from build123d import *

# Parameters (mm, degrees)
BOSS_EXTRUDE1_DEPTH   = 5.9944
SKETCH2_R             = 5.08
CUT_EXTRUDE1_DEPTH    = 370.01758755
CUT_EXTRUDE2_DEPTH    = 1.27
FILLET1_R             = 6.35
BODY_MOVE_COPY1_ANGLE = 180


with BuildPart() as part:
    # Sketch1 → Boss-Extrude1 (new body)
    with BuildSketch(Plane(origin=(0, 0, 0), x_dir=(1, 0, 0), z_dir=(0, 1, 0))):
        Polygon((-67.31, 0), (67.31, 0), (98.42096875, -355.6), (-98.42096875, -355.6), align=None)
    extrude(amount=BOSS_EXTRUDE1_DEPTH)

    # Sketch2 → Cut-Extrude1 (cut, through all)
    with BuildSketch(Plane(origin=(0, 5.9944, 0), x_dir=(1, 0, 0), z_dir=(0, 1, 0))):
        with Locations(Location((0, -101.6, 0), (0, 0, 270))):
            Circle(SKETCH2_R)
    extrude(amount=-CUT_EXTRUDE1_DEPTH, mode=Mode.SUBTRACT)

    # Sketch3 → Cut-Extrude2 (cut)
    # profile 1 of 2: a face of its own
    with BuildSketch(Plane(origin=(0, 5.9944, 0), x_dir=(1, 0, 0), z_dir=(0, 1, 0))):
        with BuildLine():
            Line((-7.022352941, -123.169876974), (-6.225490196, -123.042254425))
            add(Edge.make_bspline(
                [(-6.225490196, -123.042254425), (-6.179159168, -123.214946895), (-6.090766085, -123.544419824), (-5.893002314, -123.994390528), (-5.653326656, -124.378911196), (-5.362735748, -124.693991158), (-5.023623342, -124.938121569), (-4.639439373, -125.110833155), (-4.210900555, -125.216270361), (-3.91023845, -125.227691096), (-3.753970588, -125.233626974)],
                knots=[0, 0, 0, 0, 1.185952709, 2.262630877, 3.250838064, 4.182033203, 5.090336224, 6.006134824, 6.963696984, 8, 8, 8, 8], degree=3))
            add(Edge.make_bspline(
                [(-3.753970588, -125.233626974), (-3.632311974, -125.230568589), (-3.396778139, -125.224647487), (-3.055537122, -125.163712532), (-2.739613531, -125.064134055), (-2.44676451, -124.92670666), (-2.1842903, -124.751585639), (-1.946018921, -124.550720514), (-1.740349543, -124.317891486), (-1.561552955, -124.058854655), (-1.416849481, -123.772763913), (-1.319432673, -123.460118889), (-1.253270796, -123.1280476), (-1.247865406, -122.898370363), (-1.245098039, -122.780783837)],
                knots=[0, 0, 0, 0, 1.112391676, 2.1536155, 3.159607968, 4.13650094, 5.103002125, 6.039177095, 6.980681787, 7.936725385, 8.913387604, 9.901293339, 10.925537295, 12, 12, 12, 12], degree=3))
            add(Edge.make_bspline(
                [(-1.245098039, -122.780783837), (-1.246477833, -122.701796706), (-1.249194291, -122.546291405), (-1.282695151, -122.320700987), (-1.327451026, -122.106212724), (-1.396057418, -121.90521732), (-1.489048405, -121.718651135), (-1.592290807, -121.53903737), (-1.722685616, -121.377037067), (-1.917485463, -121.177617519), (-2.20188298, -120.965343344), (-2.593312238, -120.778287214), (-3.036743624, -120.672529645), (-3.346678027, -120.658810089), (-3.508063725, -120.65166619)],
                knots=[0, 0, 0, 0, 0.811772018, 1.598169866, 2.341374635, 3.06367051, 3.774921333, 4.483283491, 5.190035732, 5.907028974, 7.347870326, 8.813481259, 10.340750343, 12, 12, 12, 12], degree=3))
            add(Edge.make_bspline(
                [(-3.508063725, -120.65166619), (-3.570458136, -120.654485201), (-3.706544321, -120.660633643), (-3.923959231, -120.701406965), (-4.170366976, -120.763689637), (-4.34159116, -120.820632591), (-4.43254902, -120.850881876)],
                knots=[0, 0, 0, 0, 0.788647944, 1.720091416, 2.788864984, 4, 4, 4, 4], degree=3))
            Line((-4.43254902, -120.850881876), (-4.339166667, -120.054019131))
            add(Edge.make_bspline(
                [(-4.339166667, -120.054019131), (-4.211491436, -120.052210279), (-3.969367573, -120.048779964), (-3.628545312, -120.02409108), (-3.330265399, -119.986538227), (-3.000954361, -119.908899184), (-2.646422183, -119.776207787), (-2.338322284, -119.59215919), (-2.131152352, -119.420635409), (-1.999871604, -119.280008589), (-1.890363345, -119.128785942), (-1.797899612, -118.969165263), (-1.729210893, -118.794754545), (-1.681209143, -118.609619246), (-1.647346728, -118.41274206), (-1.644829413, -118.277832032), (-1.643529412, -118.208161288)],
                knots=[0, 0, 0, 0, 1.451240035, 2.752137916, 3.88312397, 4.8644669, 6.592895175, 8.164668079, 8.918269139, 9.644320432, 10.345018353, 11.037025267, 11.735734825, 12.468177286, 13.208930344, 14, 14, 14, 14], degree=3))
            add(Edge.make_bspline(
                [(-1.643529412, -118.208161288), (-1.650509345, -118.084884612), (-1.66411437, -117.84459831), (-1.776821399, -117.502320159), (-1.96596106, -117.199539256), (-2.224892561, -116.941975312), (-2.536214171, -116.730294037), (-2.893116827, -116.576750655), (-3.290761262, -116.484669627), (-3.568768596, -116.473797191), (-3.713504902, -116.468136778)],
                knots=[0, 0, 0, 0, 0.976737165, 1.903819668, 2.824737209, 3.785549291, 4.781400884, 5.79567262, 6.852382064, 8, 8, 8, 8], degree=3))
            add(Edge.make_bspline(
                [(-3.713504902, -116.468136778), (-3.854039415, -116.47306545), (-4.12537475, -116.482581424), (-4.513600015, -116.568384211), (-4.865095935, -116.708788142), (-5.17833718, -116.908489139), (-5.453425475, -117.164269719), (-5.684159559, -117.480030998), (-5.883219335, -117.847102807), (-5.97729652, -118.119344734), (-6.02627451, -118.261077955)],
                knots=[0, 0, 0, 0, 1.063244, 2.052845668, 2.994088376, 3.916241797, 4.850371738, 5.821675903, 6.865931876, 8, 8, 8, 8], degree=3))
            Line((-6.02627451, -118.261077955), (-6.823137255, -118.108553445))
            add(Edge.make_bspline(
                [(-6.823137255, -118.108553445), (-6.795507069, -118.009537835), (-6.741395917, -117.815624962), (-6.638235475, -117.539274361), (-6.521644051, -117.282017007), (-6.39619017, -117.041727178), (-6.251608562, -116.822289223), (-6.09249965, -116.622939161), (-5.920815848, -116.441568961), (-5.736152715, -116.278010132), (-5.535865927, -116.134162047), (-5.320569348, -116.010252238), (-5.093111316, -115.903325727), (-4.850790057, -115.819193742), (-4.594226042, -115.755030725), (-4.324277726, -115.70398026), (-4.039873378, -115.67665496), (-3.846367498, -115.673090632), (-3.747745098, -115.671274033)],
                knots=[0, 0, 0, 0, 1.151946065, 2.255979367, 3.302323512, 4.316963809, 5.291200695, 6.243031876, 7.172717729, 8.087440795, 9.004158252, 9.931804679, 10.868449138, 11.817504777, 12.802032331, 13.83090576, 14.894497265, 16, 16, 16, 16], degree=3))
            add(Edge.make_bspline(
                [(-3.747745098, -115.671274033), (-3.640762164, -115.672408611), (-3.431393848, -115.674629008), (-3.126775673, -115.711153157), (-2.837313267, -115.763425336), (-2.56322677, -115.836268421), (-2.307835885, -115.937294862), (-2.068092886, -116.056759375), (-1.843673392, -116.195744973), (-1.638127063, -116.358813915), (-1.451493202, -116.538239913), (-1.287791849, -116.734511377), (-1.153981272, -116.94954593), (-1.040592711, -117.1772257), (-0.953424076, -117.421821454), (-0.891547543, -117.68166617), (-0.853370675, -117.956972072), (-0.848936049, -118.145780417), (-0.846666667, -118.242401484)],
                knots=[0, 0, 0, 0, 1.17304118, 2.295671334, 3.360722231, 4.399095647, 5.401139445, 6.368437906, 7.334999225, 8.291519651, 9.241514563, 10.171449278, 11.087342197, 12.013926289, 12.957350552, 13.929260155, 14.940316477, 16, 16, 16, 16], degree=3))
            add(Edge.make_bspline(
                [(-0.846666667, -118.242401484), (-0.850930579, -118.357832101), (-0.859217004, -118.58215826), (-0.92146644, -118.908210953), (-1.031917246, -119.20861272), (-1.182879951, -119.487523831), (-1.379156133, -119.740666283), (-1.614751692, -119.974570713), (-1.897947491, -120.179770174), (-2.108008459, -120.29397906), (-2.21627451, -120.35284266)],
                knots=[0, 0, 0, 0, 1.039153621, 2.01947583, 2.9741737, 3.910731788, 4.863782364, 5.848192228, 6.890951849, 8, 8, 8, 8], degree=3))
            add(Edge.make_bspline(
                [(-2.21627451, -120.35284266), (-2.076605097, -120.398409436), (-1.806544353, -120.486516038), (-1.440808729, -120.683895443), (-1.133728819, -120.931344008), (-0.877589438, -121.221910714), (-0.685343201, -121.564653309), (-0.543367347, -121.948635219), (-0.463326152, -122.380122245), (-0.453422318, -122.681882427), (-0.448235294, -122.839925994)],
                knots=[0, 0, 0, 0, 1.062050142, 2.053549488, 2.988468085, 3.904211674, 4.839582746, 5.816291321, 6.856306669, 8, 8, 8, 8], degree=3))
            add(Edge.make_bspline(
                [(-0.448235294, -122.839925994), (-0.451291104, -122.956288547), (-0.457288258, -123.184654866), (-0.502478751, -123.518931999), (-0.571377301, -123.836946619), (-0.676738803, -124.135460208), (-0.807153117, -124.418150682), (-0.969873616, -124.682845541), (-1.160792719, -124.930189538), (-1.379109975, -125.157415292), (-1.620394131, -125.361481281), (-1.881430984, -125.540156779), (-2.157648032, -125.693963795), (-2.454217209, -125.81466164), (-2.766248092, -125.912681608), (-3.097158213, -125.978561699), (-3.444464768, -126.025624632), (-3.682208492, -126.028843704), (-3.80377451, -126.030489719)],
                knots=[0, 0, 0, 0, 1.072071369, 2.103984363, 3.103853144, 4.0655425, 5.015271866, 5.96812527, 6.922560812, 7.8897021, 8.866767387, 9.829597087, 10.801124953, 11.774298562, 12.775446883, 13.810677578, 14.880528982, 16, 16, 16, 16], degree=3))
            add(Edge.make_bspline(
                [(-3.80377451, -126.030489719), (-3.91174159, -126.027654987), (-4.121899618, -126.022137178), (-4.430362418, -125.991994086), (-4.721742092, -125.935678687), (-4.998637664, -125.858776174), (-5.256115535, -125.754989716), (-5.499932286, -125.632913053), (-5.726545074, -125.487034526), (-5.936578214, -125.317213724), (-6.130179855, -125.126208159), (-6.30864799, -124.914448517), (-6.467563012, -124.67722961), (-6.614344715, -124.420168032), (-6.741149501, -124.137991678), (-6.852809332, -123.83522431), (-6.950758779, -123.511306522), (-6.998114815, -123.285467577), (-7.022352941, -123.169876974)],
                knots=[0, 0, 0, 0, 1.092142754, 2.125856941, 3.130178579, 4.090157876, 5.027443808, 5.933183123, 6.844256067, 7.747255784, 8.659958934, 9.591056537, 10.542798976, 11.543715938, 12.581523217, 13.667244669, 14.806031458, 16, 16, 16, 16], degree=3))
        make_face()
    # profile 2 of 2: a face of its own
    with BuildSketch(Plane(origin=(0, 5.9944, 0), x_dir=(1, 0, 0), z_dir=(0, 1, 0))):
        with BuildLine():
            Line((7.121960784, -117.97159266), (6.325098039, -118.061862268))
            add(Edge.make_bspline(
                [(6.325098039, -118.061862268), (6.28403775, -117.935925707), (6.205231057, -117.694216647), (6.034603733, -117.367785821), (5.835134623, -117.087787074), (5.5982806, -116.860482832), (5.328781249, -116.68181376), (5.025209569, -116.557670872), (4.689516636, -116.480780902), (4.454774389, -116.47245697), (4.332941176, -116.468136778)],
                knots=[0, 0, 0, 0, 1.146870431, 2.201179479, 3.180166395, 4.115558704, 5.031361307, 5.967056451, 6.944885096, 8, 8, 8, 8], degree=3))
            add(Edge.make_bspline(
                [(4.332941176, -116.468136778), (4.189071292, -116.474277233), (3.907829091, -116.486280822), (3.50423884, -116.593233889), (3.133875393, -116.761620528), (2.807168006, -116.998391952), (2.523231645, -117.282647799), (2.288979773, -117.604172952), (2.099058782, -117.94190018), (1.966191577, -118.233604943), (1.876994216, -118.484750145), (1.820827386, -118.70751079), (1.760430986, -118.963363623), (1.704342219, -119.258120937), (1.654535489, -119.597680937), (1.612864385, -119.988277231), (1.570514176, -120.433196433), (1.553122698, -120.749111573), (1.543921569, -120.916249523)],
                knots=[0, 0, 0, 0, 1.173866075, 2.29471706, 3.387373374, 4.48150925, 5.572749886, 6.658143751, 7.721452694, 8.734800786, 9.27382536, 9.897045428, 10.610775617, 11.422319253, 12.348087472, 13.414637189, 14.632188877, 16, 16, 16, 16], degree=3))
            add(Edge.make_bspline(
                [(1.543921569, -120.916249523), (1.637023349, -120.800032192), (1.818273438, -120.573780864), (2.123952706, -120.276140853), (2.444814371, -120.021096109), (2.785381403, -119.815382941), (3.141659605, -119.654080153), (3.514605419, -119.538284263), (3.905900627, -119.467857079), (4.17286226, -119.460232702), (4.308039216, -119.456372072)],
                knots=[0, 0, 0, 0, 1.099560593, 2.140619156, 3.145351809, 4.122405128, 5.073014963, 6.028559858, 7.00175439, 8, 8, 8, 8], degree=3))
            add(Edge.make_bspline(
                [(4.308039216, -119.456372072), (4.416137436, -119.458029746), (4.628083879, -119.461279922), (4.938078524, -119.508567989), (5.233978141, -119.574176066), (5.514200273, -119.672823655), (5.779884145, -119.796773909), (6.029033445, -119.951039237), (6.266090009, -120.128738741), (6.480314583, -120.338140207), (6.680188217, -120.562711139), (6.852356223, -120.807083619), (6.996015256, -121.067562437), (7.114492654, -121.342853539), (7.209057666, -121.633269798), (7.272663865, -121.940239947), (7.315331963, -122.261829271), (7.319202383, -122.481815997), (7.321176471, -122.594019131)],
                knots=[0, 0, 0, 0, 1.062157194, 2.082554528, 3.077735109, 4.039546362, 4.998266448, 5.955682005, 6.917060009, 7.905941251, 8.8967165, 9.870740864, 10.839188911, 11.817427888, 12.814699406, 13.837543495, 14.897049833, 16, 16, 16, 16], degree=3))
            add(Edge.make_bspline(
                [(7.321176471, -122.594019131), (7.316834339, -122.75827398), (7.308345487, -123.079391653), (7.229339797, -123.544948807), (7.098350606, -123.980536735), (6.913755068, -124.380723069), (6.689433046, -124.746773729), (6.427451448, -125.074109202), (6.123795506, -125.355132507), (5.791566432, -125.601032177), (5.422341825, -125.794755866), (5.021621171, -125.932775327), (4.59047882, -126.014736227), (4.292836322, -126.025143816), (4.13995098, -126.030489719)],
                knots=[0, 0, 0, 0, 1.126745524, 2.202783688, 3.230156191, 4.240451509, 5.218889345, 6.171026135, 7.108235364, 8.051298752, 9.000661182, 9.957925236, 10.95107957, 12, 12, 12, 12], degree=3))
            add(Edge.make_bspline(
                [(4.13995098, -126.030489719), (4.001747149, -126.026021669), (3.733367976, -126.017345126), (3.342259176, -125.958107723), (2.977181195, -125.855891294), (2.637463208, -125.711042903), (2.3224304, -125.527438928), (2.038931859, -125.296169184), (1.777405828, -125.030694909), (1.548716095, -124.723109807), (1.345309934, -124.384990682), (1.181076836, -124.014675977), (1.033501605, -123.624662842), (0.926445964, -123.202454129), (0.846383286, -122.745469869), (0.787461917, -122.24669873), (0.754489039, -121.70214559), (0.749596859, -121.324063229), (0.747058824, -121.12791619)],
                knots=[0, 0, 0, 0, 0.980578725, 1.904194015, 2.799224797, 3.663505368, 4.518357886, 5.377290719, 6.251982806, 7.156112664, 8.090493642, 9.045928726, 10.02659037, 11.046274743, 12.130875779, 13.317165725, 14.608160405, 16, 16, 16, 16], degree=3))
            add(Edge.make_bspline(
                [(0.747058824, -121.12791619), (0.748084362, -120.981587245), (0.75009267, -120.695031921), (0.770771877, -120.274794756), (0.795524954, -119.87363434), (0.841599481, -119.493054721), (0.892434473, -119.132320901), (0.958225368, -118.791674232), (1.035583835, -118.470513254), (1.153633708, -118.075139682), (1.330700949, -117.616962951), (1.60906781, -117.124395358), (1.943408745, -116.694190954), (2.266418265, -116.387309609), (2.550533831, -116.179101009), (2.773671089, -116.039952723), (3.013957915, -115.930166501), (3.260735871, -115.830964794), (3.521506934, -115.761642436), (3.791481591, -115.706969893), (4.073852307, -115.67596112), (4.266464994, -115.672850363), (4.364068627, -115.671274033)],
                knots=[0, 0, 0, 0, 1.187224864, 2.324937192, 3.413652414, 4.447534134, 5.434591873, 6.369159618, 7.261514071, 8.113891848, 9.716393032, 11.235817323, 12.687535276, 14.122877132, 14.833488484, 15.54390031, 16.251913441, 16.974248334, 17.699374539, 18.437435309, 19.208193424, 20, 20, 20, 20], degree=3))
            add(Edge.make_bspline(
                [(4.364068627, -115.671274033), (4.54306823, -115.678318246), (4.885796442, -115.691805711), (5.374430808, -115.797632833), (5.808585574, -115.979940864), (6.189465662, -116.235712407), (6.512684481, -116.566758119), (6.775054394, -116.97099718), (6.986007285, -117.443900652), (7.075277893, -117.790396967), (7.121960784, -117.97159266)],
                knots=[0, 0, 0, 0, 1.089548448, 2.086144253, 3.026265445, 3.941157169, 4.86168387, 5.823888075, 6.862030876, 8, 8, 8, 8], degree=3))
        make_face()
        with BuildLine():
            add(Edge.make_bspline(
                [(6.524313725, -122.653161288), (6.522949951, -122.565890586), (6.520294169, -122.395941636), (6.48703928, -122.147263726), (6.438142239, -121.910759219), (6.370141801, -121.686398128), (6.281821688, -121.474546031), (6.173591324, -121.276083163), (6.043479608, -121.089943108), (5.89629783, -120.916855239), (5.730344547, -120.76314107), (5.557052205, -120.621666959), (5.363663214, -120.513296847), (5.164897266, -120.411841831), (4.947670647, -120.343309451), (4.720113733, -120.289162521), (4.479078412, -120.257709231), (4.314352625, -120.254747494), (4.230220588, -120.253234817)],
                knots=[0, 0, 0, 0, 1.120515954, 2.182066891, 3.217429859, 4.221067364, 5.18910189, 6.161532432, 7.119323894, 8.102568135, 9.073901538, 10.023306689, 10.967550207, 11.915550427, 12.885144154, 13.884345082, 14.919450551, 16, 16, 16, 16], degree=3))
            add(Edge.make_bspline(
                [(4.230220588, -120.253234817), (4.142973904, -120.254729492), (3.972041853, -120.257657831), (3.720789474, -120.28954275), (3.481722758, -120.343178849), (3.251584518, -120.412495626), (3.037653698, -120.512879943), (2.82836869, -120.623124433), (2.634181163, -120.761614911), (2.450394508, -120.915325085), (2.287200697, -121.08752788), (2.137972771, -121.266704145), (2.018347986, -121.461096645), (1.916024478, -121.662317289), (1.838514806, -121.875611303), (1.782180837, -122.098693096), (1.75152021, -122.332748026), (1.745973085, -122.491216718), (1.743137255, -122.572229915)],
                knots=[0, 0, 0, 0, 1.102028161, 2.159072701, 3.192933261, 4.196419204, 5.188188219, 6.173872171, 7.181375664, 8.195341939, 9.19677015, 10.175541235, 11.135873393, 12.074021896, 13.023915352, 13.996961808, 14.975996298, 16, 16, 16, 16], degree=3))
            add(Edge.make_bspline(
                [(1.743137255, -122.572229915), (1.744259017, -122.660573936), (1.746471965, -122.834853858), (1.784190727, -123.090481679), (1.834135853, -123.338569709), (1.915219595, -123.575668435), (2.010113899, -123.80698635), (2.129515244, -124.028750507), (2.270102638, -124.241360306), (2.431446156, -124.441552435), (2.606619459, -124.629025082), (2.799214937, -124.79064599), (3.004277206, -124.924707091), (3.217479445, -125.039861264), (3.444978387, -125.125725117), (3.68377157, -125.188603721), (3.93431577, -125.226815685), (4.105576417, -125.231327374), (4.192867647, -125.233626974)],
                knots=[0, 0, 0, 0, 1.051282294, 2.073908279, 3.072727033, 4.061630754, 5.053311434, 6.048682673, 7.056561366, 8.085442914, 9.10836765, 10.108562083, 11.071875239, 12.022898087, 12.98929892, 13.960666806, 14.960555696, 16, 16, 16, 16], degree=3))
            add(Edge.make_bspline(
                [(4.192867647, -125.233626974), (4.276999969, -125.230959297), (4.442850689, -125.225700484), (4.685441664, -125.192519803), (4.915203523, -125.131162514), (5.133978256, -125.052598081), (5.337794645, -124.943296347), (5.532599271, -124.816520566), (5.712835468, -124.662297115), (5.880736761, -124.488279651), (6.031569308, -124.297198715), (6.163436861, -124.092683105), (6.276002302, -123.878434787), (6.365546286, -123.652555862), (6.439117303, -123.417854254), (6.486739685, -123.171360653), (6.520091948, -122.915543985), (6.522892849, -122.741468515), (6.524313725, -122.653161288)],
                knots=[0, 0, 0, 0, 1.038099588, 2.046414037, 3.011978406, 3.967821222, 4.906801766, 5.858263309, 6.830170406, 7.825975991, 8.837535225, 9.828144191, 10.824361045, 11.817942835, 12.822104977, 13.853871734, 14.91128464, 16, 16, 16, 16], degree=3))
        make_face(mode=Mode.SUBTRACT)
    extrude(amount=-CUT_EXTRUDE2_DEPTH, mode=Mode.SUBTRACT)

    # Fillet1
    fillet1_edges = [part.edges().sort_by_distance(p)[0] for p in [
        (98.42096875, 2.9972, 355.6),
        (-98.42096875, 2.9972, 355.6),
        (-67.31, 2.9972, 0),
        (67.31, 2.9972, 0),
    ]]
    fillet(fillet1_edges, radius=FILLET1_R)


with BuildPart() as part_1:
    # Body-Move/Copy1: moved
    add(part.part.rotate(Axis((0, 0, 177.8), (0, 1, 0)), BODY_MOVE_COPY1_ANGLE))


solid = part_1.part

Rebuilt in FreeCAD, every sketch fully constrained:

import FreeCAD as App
import Part
import Sketcher

V = App.Vector
Q = App.Units.Quantity


def edges_at(feature, points):
    """Names of the edges that pass closest to the given points."""
    edges = feature.Shape.Edges
    near = lambda p: min(range(len(edges)), key=lambda i: edges[i].distToShape(Part.Vertex(*p))[0])
    return sorted({f"Edge{near(p) + 1}" for p in points})

doc = App.newDocument("Part")
body = doc.addObject("PartDesign::Body", "Body")

# Sketch on XZ plane
sketch1 = body.newObject("Sketcher::SketchObject", "Sketch")
sketch1.AttachmentSupport = (doc.getObject("XZ_Plane"), [""])
sketch1.MapMode = "FlatFace"
sketch1.addGeometry([
    Part.LineSegment(V(67.31, 0, 0), V(-67.31, 0, 0)),
    Part.LineSegment(V(-67.31, 0, 0), V(-98.420969, 355.6, 0)),
    Part.LineSegment(V(-98.420969, 355.6, 0), V(98.420969, 355.6, 0)),
    Part.LineSegment(V(98.420969, 355.6, 0), V(67.31, 0, 0)),
], False)
sketch1.addConstraint([
    Sketcher.Constraint("Coincident", 0, 2, 1, 1),
    Sketcher.Constraint("Coincident", 1, 2, 2, 1),
    Sketcher.Constraint("Coincident", 2, 2, 3, 1),
    Sketcher.Constraint("Coincident", 3, 2, 0, 1),
    Sketcher.Constraint("Horizontal", 0),
    Sketcher.Constraint("Horizontal", 2),
    Sketcher.Constraint("Symmetric", 0, 2, 3, 2, -1, 1),
    Sketcher.Constraint("Equal", 1, 3),
    Sketcher.Constraint("DistanceX", 0, 2, 0, 1, Q("5.3 in")),
    Sketcher.Constraint("DistanceY", -1, 1, 1, 2, Q("14 in")),
    Sketcher.Constraint("Angle", 1, Q("95 deg")),
])
pad1 = body.newObject("PartDesign::Pad", "Pad")
pad1.Profile = sketch1
pad1.Length = Q("0.236 in")
pad1.Reversed = True

# Sketch on XZ plane
sketch2 = body.newObject("Sketcher::SketchObject", "Sketch001")
sketch2.AttachmentSupport = (doc.getObject("XZ_Plane"), [""])
sketch2.MapMode = "FlatFace"
sketch2.AttachmentOffset = App.Placement(V(0, 0, -0.236 * 25.4), App.Rotation())
sketch2.addGeometry(Part.Circle(V(0, 101.6, 0), V(0, 0, 1), 5.08), False)
sketch2.addConstraint([
    Sketcher.Constraint("PointOnObject", 0, 3, -2),
    Sketcher.Constraint("Diameter", 0, Q("0.4 in")),
    Sketcher.Constraint("DistanceY", -1, 1, 0, 3, Q("4 in")),
])
pocket1 = body.newObject("PartDesign::Pocket", "Pocket")
pocket1.Profile = sketch2
pocket1.Type = "ThroughAll"
pocket1.Reversed = True

# Sketch on XZ plane
sketch3 = body.newObject("Sketcher::SketchObject", "Sketch002")
sketch3.AttachmentSupport = (doc.getObject("XZ_Plane"), [""])
sketch3.MapMode = "FlatFace"
sketch3.AttachmentOffset = App.Placement(V(0, 0, -0.236 * 25.4), App.Rotation())
sketch3.addGeometry([
    Part.LineSegment(V(-6.22549, 123.042254, 0), V(-7.022353, 123.169877, 0)),  # 0
    Part.BSplineCurve([V(-3.803775, 126.03049, 0), V(-3.911742, 126.027655, 0), V(-4.1219, 126.022137, 0), V(-4.430362, 125.991994, 0), V(-4.721742, 125.935679, 0), V(-4.998638, 125.858776, 0), V(-5.256116, 125.75499, 0), V(-5.499932, 125.632913, 0), V(-5.726545, 125.487035, 0), V(-5.936578, 125.317214, 0), V(-6.13018, 125.126208, 0), V(-6.308648, 124.914449, 0), V(-6.467563, 124.67723, 0), V(-6.614345, 124.420168, 0), V(-6.74115, 124.137992, 0), V(-6.852809, 123.835224, 0), V(-6.950759, 123.511307, 0), V(-6.998115, 123.285468, 0), V(-7.022353, 123.169877, 0)], [4, 1, 1, 1, 1, 1, 1, 1, 1, 1, 1, 1, 1, 1, 1, 1, 4], [0, 1.092142754, 2.125856941, 3.130178579, 4.090157876, 5.027443808, 5.933183123, 6.844256067, 7.747255784, 8.659958934, 9.591056537, 10.542798976, 11.543715938, 12.581523217, 13.667244669, 14.806031458, 16], False, 3, [1, 1, 1, 1, 1, 1, 1, 1, 1, 1, 1, 1, 1, 1, 1, 1, 1, 1, 1], False),  # 1
    Part.BSplineCurve([V(-0.448235, 122.839926, 0), V(-0.451291, 122.956289, 0), V(-0.457288, 123.184655, 0), V(-0.502479, 123.518932, 0), V(-0.571377, 123.836947, 0), V(-0.676739, 124.13546, 0), V(-0.807153, 124.418151, 0), V(-0.969874, 124.682846, 0), V(-1.160793, 124.93019, 0), V(-1.37911, 125.157415, 0), V(-1.620394, 125.361481, 0), V(-1.881431, 125.540157, 0), V(-2.157648, 125.693964, 0), V(-2.454217, 125.814662, 0), V(-2.766248, 125.912682, 0), V(-3.097158, 125.978562, 0), V(-3.444465, 126.025625, 0), V(-3.682208, 126.028844, 0), V(-3.803775, 126.03049, 0)], [4, 1, 1, 1, 1, 1, 1, 1, 1, 1, 1, 1, 1, 1, 1, 1, 4], [0, 1.072071369, 2.103984363, 3.103853144, 4.0655425, 5.015271866, 5.96812527, 6.922560812, 7.8897021, 8.866767387, 9.829597087, 10.801124953, 11.774298562, 12.775446883, 13.810677578, 14.880528982, 16], False, 3, [1, 1, 1, 1, 1, 1, 1, 1, 1, 1, 1, 1, 1, 1, 1, 1, 1, 1, 1], False),  # 2
    Part.BSplineCurve([V(-2.216275, 120.352843, 0), V(-2.076605, 120.398409, 0), V(-1.806544, 120.486516, 0), V(-1.440809, 120.683895, 0), V(-1.133729, 120.931344, 0), V(-0.877589, 121.221911, 0), V(-0.685343, 121.564653, 0), V(-0.543367, 121.948635, 0), V(-0.463326, 122.380122, 0), V(-0.453422, 122.681882, 0), V(-0.448235, 122.839926, 0)], [4, 1, 1, 1, 1, 1, 1, 1, 4], [0, 1.062050142, 2.053549488, 2.988468085, 3.904211674, 4.839582746, 5.816291321, 6.856306669, 8], False, 3, [1, 1, 1, 1, 1, 1, 1, 1, 1, 1, 1], False),  # 3
    Part.BSplineCurve([V(-0.846667, 118.242401, 0), V(-0.850931, 118.357832, 0), V(-0.859217, 118.582158, 0), V(-0.921466, 118.908211, 0), V(-1.031917, 119.208613, 0), V(-1.18288, 119.487524, 0), V(-1.379156, 119.740666, 0), V(-1.614752, 119.974571, 0), V(-1.897947, 120.17977, 0), V(-2.108008, 120.293979, 0), V(-2.216275, 120.352843, 0)], [4, 1, 1, 1, 1, 1, 1, 1, 4], [0, 1.039153621, 2.01947583, 2.9741737, 3.910731788, 4.863782364, 5.848192228, 6.890951849, 8], False, 3, [1, 1, 1, 1, 1, 1, 1, 1, 1, 1, 1], False),  # 4
    Part.BSplineCurve([V(-3.747745, 115.671274, 0), V(-3.640762, 115.672409, 0), V(-3.431394, 115.674629, 0), V(-3.126776, 115.711153, 0), V(-2.837313, 115.763425, 0), V(-2.563227, 115.836268, 0), V(-2.307836, 115.937295, 0), V(-2.068093, 116.056759, 0), V(-1.843673, 116.195745, 0), V(-1.638127, 116.358814, 0), V(-1.451493, 116.53824, 0), V(-1.287792, 116.734511, 0), V(-1.153981, 116.949546, 0), V(-1.040593, 117.177226, 0), V(-0.953424, 117.421821, 0), V(-0.891548, 117.681666, 0), V(-0.853371, 117.956972, 0), V(-0.848936, 118.14578, 0), V(-0.846667, 118.242401, 0)], [4, 1, 1, 1, 1, 1, 1, 1, 1, 1, 1, 1, 1, 1, 1, 1, 4], [0, 1.17304118, 2.295671334, 3.360722231, 4.399095647, 5.401139445, 6.368437906, 7.334999225, 8.291519651, 9.241514563, 10.171449278, 11.087342197, 12.013926289, 12.957350552, 13.929260155, 14.940316477, 16], False, 3, [1, 1, 1, 1, 1, 1, 1, 1, 1, 1, 1, 1, 1, 1, 1, 1, 1, 1, 1], False),  # 5
    Part.BSplineCurve([V(-6.823137, 118.108553, 0), V(-6.795507, 118.009538, 0), V(-6.741396, 117.815625, 0), V(-6.638235, 117.539274, 0), V(-6.521644, 117.282017, 0), V(-6.39619, 117.041727, 0), V(-6.251609, 116.822289, 0), V(-6.0925, 116.622939, 0), V(-5.920816, 116.441569, 0), V(-5.736153, 116.27801, 0), V(-5.535866, 116.134162, 0), V(-5.320569, 116.010252, 0), V(-5.093111, 115.903326, 0), V(-4.85079, 115.819194, 0), V(-4.594226, 115.755031, 0), V(-4.324278, 115.70398, 0), V(-4.039873, 115.676655, 0), V(-3.846367, 115.673091, 0), V(-3.747745, 115.671274, 0)], [4, 1, 1, 1, 1, 1, 1, 1, 1, 1, 1, 1, 1, 1, 1, 1, 4], [0, 1.151946065, 2.255979367, 3.302323512, 4.316963809, 5.291200695, 6.243031876, 7.172717729, 8.087440795, 9.004158252, 9.931804679, 10.868449138, 11.817504777, 12.802032331, 13.83090576, 14.894497265, 16], False, 3, [1, 1, 1, 1, 1, 1, 1, 1, 1, 1, 1, 1, 1, 1, 1, 1, 1, 1, 1], False),  # 6
    Part.LineSegment(V(-6.823137, 118.108553, 0), V(-6.026275, 118.261078, 0)),  # 7
    Part.BSplineCurve([V(-3.713505, 116.468137, 0), V(-3.854039, 116.473065, 0), V(-4.125375, 116.482581, 0), V(-4.5136, 116.568384, 0), V(-4.865096, 116.708788, 0), V(-5.178337, 116.908489, 0), V(-5.453425, 117.16427, 0), V(-5.68416, 117.480031, 0), V(-5.883219, 117.847103, 0), V(-5.977297, 118.119345, 0), V(-6.026275, 118.261078, 0)], [4, 1, 1, 1, 1, 1, 1, 1, 4], [0, 1.063244, 2.052845668, 2.994088376, 3.916241797, 4.850371738, 5.821675903, 6.865931876, 8], False, 3, [1, 1, 1, 1, 1, 1, 1, 1, 1, 1, 1], False),  # 8
    Part.BSplineCurve([V(-1.643529, 118.208161, 0), V(-1.650509, 118.084885, 0), V(-1.664114, 117.844598, 0), V(-1.776821, 117.50232, 0), V(-1.965961, 117.199539, 0), V(-2.224893, 116.941975, 0), V(-2.536214, 116.730294, 0), V(-2.893117, 116.576751, 0), V(-3.290761, 116.48467, 0), V(-3.568769, 116.473797, 0), V(-3.713505, 116.468137, 0)], [4, 1, 1, 1, 1, 1, 1, 1, 4], [0, 0.976737165, 1.903819668, 2.824737209, 3.785549291, 4.781400884, 5.79567262, 6.852382064, 8], False, 3, [1, 1, 1, 1, 1, 1, 1, 1, 1, 1, 1], False),  # 9
    Part.BSplineCurve([V(-4.339167, 120.054019, 0), V(-4.211491, 120.05221, 0), V(-3.969368, 120.04878, 0), V(-3.628545, 120.024091, 0), V(-3.330265, 119.986538, 0), V(-3.000954, 119.908899, 0), V(-2.646422, 119.776208, 0), V(-2.338322, 119.592159, 0), V(-2.131152, 119.420635, 0), V(-1.999872, 119.280009, 0), V(-1.890363, 119.128786, 0), V(-1.7979, 118.969165, 0), V(-1.729211, 118.794755, 0), V(-1.681209, 118.609619, 0), V(-1.647347, 118.412742, 0), V(-1.644829, 118.277832, 0), V(-1.643529, 118.208161, 0)], [4, 1, 1, 1, 1, 1, 1, 1, 1, 1, 1, 1, 1, 1, 4], [0, 1.451240035, 2.752137916, 3.88312397, 4.8644669, 6.592895175, 8.164668079, 8.918269139, 9.644320432, 10.345018353, 11.037025267, 11.735734825, 12.468177286, 13.208930344, 14], False, 3, [1, 1, 1, 1, 1, 1, 1, 1, 1, 1, 1, 1, 1, 1, 1, 1, 1], False),  # 10
    Part.LineSegment(V(-4.339167, 120.054019, 0), V(-4.432549, 120.850882, 0)),  # 11
    Part.BSplineCurve([V(-3.508064, 120.651666, 0), V(-3.570458, 120.654485, 0), V(-3.706544, 120.660634, 0), V(-3.923959, 120.701407, 0), V(-4.170367, 120.76369, 0), V(-4.341591, 120.820633, 0), V(-4.432549, 120.850882, 0)], [4, 1, 1, 1, 4], [0, 0.788647944, 1.720091416, 2.788864984, 4], False, 3, [1, 1, 1, 1, 1, 1, 1], False),  # 12
    Part.BSplineCurve([V(-1.245098, 122.780784, 0), V(-1.246478, 122.701797, 0), V(-1.249194, 122.546291, 0), V(-1.282695, 122.320701, 0), V(-1.327451, 122.106213, 0), V(-1.396057, 121.905217, 0), V(-1.489048, 121.718651, 0), V(-1.592291, 121.539037, 0), V(-1.722686, 121.377037, 0), V(-1.917485, 121.177618, 0), V(-2.201883, 120.965343, 0), V(-2.593312, 120.778287, 0), V(-3.036744, 120.67253, 0), V(-3.346678, 120.65881, 0), V(-3.508064, 120.651666, 0)], [4, 1, 1, 1, 1, 1, 1, 1, 1, 1, 1, 1, 4], [0, 0.811772018, 1.598169866, 2.341374635, 3.06367051, 3.774921333, 4.483283491, 5.190035732, 5.907028974, 7.347870326, 8.813481259, 10.340750343, 12], False, 3, [1, 1, 1, 1, 1, 1, 1, 1, 1, 1, 1, 1, 1, 1, 1], False),  # 13
    Part.BSplineCurve([V(-3.753971, 125.233627, 0), V(-3.632312, 125.230569, 0), V(-3.396778, 125.224647, 0), V(-3.055537, 125.163713, 0), V(-2.739614, 125.064134, 0), V(-2.446765, 124.926707, 0), V(-2.18429, 124.751586, 0), V(-1.946019, 124.550721, 0), V(-1.74035, 124.317891, 0), V(-1.561553, 124.058855, 0), V(-1.416849, 123.772764, 0), V(-1.319433, 123.460119, 0), V(-1.253271, 123.128048, 0), V(-1.247865, 122.89837, 0), V(-1.245098, 122.780784, 0)], [4, 1, 1, 1, 1, 1, 1, 1, 1, 1, 1, 1, 4], [0, 1.112391676, 2.1536155, 3.159607968, 4.13650094, 5.103002125, 6.039177095, 6.980681787, 7.936725385, 8.913387604, 9.901293339, 10.925537295, 12], False, 3, [1, 1, 1, 1, 1, 1, 1, 1, 1, 1, 1, 1, 1, 1, 1], False),  # 14
    Part.BSplineCurve([V(-6.22549, 123.042254, 0), V(-6.179159, 123.214947, 0), V(-6.090766, 123.54442, 0), V(-5.893002, 123.994391, 0), V(-5.653327, 124.378911, 0), V(-5.362736, 124.693991, 0), V(-5.023623, 124.938122, 0), V(-4.639439, 125.110833, 0), V(-4.210901, 125.21627, 0), V(-3.910238, 125.227691, 0), V(-3.753971, 125.233627, 0)], [4, 1, 1, 1, 1, 1, 1, 1, 4], [0, 1.185952709, 2.262630877, 3.250838064, 4.182033203, 5.090336224, 6.006134824, 6.963696984, 8], False, 3, [1, 1, 1, 1, 1, 1, 1, 1, 1, 1, 1], False),  # 15
    Part.LineSegment(V(6.325098, 118.061862, 0), V(7.121961, 117.971593, 0)),  # 16
    Part.BSplineCurve([V(4.364069, 115.671274, 0), V(4.543068, 115.678318, 0), V(4.885796, 115.691806, 0), V(5.374431, 115.797633, 0), V(5.808586, 115.979941, 0), V(6.189466, 116.235712, 0), V(6.512684, 116.566758, 0), V(6.775054, 116.970997, 0), V(6.986007, 117.443901, 0), V(7.075278, 117.790397, 0), V(7.121961, 117.971593, 0)], [4, 1, 1, 1, 1, 1, 1, 1, 4], [0, 1.089548448, 2.086144253, 3.026265445, 3.941157169, 4.86168387, 5.823888075, 6.862030876, 8], False, 3, [1, 1, 1, 1, 1, 1, 1, 1, 1, 1, 1], False),  # 17
    Part.BSplineCurve([V(0.747059, 121.127916, 0), V(0.748084, 120.981587, 0), V(0.750093, 120.695032, 0), V(0.770772, 120.274795, 0), V(0.795525, 119.873634, 0), V(0.841599, 119.493055, 0), V(0.892434, 119.132321, 0), V(0.958225, 118.791674, 0), V(1.035584, 118.470513, 0), V(1.153634, 118.07514, 0), V(1.330701, 117.616963, 0), V(1.609068, 117.124395, 0), V(1.943409, 116.694191, 0), V(2.266418, 116.38731, 0), V(2.550534, 116.179101, 0), V(2.773671, 116.039953, 0), V(3.013958, 115.930167, 0), V(3.260736, 115.830965, 0), V(3.521507, 115.761642, 0), V(3.791482, 115.70697, 0), V(4.073852, 115.675961, 0), V(4.266465, 115.67285, 0), V(4.364069, 115.671274, 0)], [4, 1, 1, 1, 1, 1, 1, 1, 1, 1, 1, 1, 1, 1, 1, 1, 1, 1, 1, 1, 4], [0, 1.187224864, 2.324937192, 3.413652414, 4.447534134, 5.434591873, 6.369159618, 7.261514071, 8.113891848, 9.716393032, 11.235817323, 12.687535276, 14.122877132, 14.833488484, 15.54390031, 16.251913441, 16.974248334, 17.699374539, 18.437435309, 19.208193424, 20], False, 3, [1, 1, 1, 1, 1, 1, 1, 1, 1, 1, 1, 1, 1, 1, 1, 1, 1, 1, 1, 1, 1, 1, 1], False),  # 18
    Part.BSplineCurve([V(4.139951, 126.03049, 0), V(4.001747, 126.026022, 0), V(3.733368, 126.017345, 0), V(3.342259, 125.958108, 0), V(2.977181, 125.855891, 0), V(2.637463, 125.711043, 0), V(2.32243, 125.527439, 0), V(2.038932, 125.296169, 0), V(1.777406, 125.030695, 0), V(1.548716, 124.72311, 0), V(1.34531, 124.384991, 0), V(1.181077, 124.014676, 0), V(1.033502, 123.624663, 0), V(0.926446, 123.202454, 0), V(0.846383, 122.74547, 0), V(0.787462, 122.246699, 0), V(0.754489, 121.702146, 0), V(0.749597, 121.324063, 0), V(0.747059, 121.127916, 0)], [4, 1, 1, 1, 1, 1, 1, 1, 1, 1, 1, 1, 1, 1, 1, 1, 4], [0, 0.980578725, 1.904194015, 2.799224797, 3.663505368, 4.518357886, 5.377290719, 6.251982806, 7.156112664, 8.090493642, 9.045928726, 10.02659037, 11.046274743, 12.130875779, 13.317165725, 14.608160405, 16], False, 3, [1, 1, 1, 1, 1, 1, 1, 1, 1, 1, 1, 1, 1, 1, 1, 1, 1, 1, 1], False),  # 19
    Part.BSplineCurve([V(7.321176, 122.594019, 0), V(7.316834, 122.758274, 0), V(7.308345, 123.079392, 0), V(7.22934, 123.544949, 0), V(7.098351, 123.980537, 0), V(6.913755, 124.380723, 0), V(6.689433, 124.746774, 0), V(6.427451, 125.074109, 0), V(6.123796, 125.355133, 0), V(5.791566, 125.601032, 0), V(5.422342, 125.794756, 0), V(5.021621, 125.932775, 0), V(4.590479, 126.014736, 0), V(4.292836, 126.025144, 0), V(4.139951, 126.03049, 0)], [4, 1, 1, 1, 1, 1, 1, 1, 1, 1, 1, 1, 4], [0, 1.126745524, 2.202783688, 3.230156191, 4.240451509, 5.218889345, 6.171026135, 7.108235364, 8.051298752, 9.000661182, 9.957925236, 10.95107957, 12], False, 3, [1, 1, 1, 1, 1, 1, 1, 1, 1, 1, 1, 1, 1, 1, 1], False),  # 20
    Part.BSplineCurve([V(4.308039, 119.456372, 0), V(4.416137, 119.45803, 0), V(4.628084, 119.46128, 0), V(4.938079, 119.508568, 0), V(5.233978, 119.574176, 0), V(5.5142, 119.672824, 0), V(5.779884, 119.796774, 0), V(6.029033, 119.951039, 0), V(6.26609, 120.128739, 0), V(6.480315, 120.33814, 0), V(6.680188, 120.562711, 0), V(6.852356, 120.807084, 0), V(6.996015, 121.067562, 0), V(7.114493, 121.342854, 0), V(7.209058, 121.63327, 0), V(7.272664, 121.94024, 0), V(7.315332, 122.261829, 0), V(7.319202, 122.481816, 0), V(7.321176, 122.594019, 0)], [4, 1, 1, 1, 1, 1, 1, 1, 1, 1, 1, 1, 1, 1, 1, 1, 4], [0, 1.062157194, 2.082554528, 3.077735109, 4.039546362, 4.998266448, 5.955682005, 6.917060009, 7.905941251, 8.8967165, 9.870740864, 10.839188911, 11.817427888, 12.814699406, 13.837543495, 14.897049833, 16], False, 3, [1, 1, 1, 1, 1, 1, 1, 1, 1, 1, 1, 1, 1, 1, 1, 1, 1, 1, 1], False),  # 21
    Part.BSplineCurve([V(1.543922, 120.91625, 0), V(1.637023, 120.800032, 0), V(1.818273, 120.573781, 0), V(2.123953, 120.276141, 0), V(2.444814, 120.021096, 0), V(2.785381, 119.815383, 0), V(3.14166, 119.65408, 0), V(3.514605, 119.538284, 0), V(3.905901, 119.467857, 0), V(4.172862, 119.460233, 0), V(4.308039, 119.456372, 0)], [4, 1, 1, 1, 1, 1, 1, 1, 4], [0, 1.099560593, 2.140619156, 3.145351809, 4.122405128, 5.073014963, 6.028559858, 7.00175439, 8], False, 3, [1, 1, 1, 1, 1, 1, 1, 1, 1, 1, 1], False),  # 22
    Part.BSplineCurve([V(4.332941, 116.468137, 0), V(4.189071, 116.474277, 0), V(3.907829, 116.486281, 0), V(3.504239, 116.593234, 0), V(3.133875, 116.761621, 0), V(2.807168, 116.998392, 0), V(2.523232, 117.282648, 0), V(2.28898, 117.604173, 0), V(2.099059, 117.9419, 0), V(1.966192, 118.233605, 0), V(1.876994, 118.48475, 0), V(1.820827, 118.707511, 0), V(1.760431, 118.963364, 0), V(1.704342, 119.258121, 0), V(1.654535, 119.597681, 0), V(1.612864, 119.988277, 0), V(1.570514, 120.433196, 0), V(1.553123, 120.749112, 0), V(1.543922, 120.91625, 0)], [4, 1, 1, 1, 1, 1, 1, 1, 1, 1, 1, 1, 1, 1, 1, 1, 4], [0, 1.173866075, 2.29471706, 3.387373374, 4.48150925, 5.572749886, 6.658143751, 7.721452694, 8.734800786, 9.27382536, 9.897045428, 10.610775617, 11.422319253, 12.348087472, 13.414637189, 14.632188877, 16], False, 3, [1, 1, 1, 1, 1, 1, 1, 1, 1, 1, 1, 1, 1, 1, 1, 1, 1, 1, 1], False),  # 23
    Part.BSplineCurve([V(6.325098, 118.061862, 0), V(6.284038, 117.935926, 0), V(6.205231, 117.694217, 0), V(6.034604, 117.367786, 0), V(5.835135, 117.087787, 0), V(5.598281, 116.860483, 0), V(5.328781, 116.681814, 0), V(5.02521, 116.557671, 0), V(4.689517, 116.480781, 0), V(4.454774, 116.472457, 0), V(4.332941, 116.468137, 0)], [4, 1, 1, 1, 1, 1, 1, 1, 4], [0, 1.146870431, 2.201179479, 3.180166395, 4.115558704, 5.031361307, 5.967056451, 6.944885096, 8], False, 3, [1, 1, 1, 1, 1, 1, 1, 1, 1, 1, 1], False),  # 24
    Part.BSplineCurve([V(4.192868, 125.233627, 0), V(4.277, 125.230959, 0), V(4.442851, 125.2257, 0), V(4.685442, 125.19252, 0), V(4.915204, 125.131163, 0), V(5.133978, 125.052598, 0), V(5.337795, 124.943296, 0), V(5.532599, 124.816521, 0), V(5.712835, 124.662297, 0), V(5.880737, 124.48828, 0), V(6.031569, 124.297199, 0), V(6.163437, 124.092683, 0), V(6.276002, 123.878435, 0), V(6.365546, 123.652556, 0), V(6.439117, 123.417854, 0), V(6.48674, 123.171361, 0), V(6.520092, 122.915544, 0), V(6.522893, 122.741469, 0), V(6.524314, 122.653161, 0)], [4, 1, 1, 1, 1, 1, 1, 1, 1, 1, 1, 1, 1, 1, 1, 1, 4], [0, 1.038099588, 2.046414037, 3.011978406, 3.967821222, 4.906801766, 5.858263309, 6.830170406, 7.825975991, 8.837535225, 9.828144191, 10.824361045, 11.817942835, 12.822104977, 13.853871734, 14.91128464, 16], False, 3, [1, 1, 1, 1, 1, 1, 1, 1, 1, 1, 1, 1, 1, 1, 1, 1, 1, 1, 1], False),  # 25
    Part.BSplineCurve([V(1.743137, 122.57223, 0), V(1.744259, 122.660574, 0), V(1.746472, 122.834854, 0), V(1.784191, 123.090482, 0), V(1.834136, 123.33857, 0), V(1.91522, 123.575668, 0), V(2.010114, 123.806986, 0), V(2.129515, 124.028751, 0), V(2.270103, 124.24136, 0), V(2.431446, 124.441552, 0), V(2.606619, 124.629025, 0), V(2.799215, 124.790646, 0), V(3.004277, 124.924707, 0), V(3.217479, 125.039861, 0), V(3.444978, 125.125725, 0), V(3.683772, 125.188604, 0), V(3.934316, 125.226816, 0), V(4.105576, 125.231327, 0), V(4.192868, 125.233627, 0)], [4, 1, 1, 1, 1, 1, 1, 1, 1, 1, 1, 1, 1, 1, 1, 1, 4], [0, 1.051282294, 2.073908279, 3.072727033, 4.061630754, 5.053311434, 6.048682673, 7.056561366, 8.085442914, 9.10836765, 10.108562083, 11.071875239, 12.022898087, 12.98929892, 13.960666806, 14.960555696, 16], False, 3, [1, 1, 1, 1, 1, 1, 1, 1, 1, 1, 1, 1, 1, 1, 1, 1, 1, 1, 1], False),  # 26
    Part.BSplineCurve([V(4.230221, 120.253235, 0), V(4.142974, 120.254729, 0), V(3.972042, 120.257658, 0), V(3.720789, 120.289543, 0), V(3.481723, 120.343179, 0), V(3.251585, 120.412496, 0), V(3.037654, 120.51288, 0), V(2.828369, 120.623124, 0), V(2.634181, 120.761615, 0), V(2.450395, 120.915325, 0), V(2.287201, 121.087528, 0), V(2.137973, 121.266704, 0), V(2.018348, 121.461097, 0), V(1.916024, 121.662317, 0), V(1.838515, 121.875611, 0), V(1.782181, 122.098693, 0), V(1.75152, 122.332748, 0), V(1.745973, 122.491217, 0), V(1.743137, 122.57223, 0)], [4, 1, 1, 1, 1, 1, 1, 1, 1, 1, 1, 1, 1, 1, 1, 1, 4], [0, 1.102028161, 2.159072701, 3.192933261, 4.196419204, 5.188188219, 6.173872171, 7.181375664, 8.195341939, 9.19677015, 10.175541235, 11.135873393, 12.074021896, 13.023915352, 13.996961808, 14.975996298, 16], False, 3, [1, 1, 1, 1, 1, 1, 1, 1, 1, 1, 1, 1, 1, 1, 1, 1, 1, 1, 1], False),  # 27
    Part.BSplineCurve([V(6.524314, 122.653161, 0), V(6.52295, 122.565891, 0), V(6.520294, 122.395942, 0), V(6.487039, 122.147264, 0), V(6.438142, 121.910759, 0), V(6.370142, 121.686398, 0), V(6.281822, 121.474546, 0), V(6.173591, 121.276083, 0), V(6.04348, 121.089943, 0), V(5.896298, 120.916855, 0), V(5.730345, 120.763141, 0), V(5.557052, 120.621667, 0), V(5.363663, 120.513297, 0), V(5.164897, 120.411842, 0), V(4.947671, 120.343309, 0), V(4.720114, 120.289163, 0), V(4.479078, 120.257709, 0), V(4.314353, 120.254747, 0), V(4.230221, 120.253235, 0)], [4, 1, 1, 1, 1, 1, 1, 1, 1, 1, 1, 1, 1, 1, 1, 1, 4], [0, 1.120515954, 2.182066891, 3.217429859, 4.221067364, 5.18910189, 6.161532432, 7.119323894, 8.102568135, 9.073901538, 10.023306689, 10.967550207, 11.915550427, 12.885144154, 13.884345082, 14.919450551, 16], False, 3, [1, 1, 1, 1, 1, 1, 1, 1, 1, 1, 1, 1, 1, 1, 1, 1, 1, 1, 1], False),  # 28
], False)
sketch3.addConstraint([
    Sketcher.Constraint("Block", 1),
    Sketcher.Constraint("Block", 2),
    Sketcher.Constraint("Block", 3),
    Sketcher.Constraint("Block", 4),
    Sketcher.Constraint("Block", 5),
    Sketcher.Constraint("Block", 6),
    Sketcher.Constraint("Block", 8),
    Sketcher.Constraint("Block", 9),
    Sketcher.Constraint("Block", 10),
    Sketcher.Constraint("Block", 12),
    Sketcher.Constraint("Block", 13),
    Sketcher.Constraint("Block", 14),
    Sketcher.Constraint("Block", 15),
    Sketcher.Constraint("Block", 17),
    Sketcher.Constraint("Block", 18),
    Sketcher.Constraint("Block", 19),
    Sketcher.Constraint("Block", 20),
    Sketcher.Constraint("Block", 21),
    Sketcher.Constraint("Block", 22),
    Sketcher.Constraint("Block", 23),
    Sketcher.Constraint("Block", 24),
    Sketcher.Constraint("Block", 25),
    Sketcher.Constraint("Block", 26),
    Sketcher.Constraint("Block", 27),
    Sketcher.Constraint("Block", 28),
    Sketcher.Constraint("Coincident", 0, 2, 1, 2),
    Sketcher.Constraint("Coincident", 6, 1, 7, 1),
    Sketcher.Constraint("Coincident", 7, 2, 8, 2),
    Sketcher.Constraint("Coincident", 10, 1, 11, 1),
    Sketcher.Constraint("Coincident", 11, 2, 12, 2),
    Sketcher.Constraint("Coincident", 15, 1, 0, 1),
    Sketcher.Constraint("Coincident", 16, 2, 17, 2),
    Sketcher.Constraint("Coincident", 24, 1, 16, 1),
])
pocket2 = body.newObject("PartDesign::Pocket", "Pocket001")
pocket2.Profile = sketch3
pocket2.Length = Q("0.05 in")
pocket2.Reversed = True
doc.recompute()

fillet = body.newObject("PartDesign::Fillet", "Fillet")
fillet.Base = (pocket2, edges_at(pocket2, [
    (98.421, 2.997, 355.6),
    (-98.421, 2.997, 355.6),
    (-67.31, 2.997, 0),
    (67.31, 2.997, 0),
]))
fillet.Radius = Q("0.25 in")
body2 = doc.addObject("PartDesign::Body", "Body001")
doc.recompute()

body.Placement = App.Placement(V(0, 0, 355.6), App.Rotation(V(0, 1, 0), 180))
boolean = body2.newObject("PartDesign::Boolean", "Boolean")
boolean.Type = "Fuse"
boolean.addObjects([body])

doc.recompute()
